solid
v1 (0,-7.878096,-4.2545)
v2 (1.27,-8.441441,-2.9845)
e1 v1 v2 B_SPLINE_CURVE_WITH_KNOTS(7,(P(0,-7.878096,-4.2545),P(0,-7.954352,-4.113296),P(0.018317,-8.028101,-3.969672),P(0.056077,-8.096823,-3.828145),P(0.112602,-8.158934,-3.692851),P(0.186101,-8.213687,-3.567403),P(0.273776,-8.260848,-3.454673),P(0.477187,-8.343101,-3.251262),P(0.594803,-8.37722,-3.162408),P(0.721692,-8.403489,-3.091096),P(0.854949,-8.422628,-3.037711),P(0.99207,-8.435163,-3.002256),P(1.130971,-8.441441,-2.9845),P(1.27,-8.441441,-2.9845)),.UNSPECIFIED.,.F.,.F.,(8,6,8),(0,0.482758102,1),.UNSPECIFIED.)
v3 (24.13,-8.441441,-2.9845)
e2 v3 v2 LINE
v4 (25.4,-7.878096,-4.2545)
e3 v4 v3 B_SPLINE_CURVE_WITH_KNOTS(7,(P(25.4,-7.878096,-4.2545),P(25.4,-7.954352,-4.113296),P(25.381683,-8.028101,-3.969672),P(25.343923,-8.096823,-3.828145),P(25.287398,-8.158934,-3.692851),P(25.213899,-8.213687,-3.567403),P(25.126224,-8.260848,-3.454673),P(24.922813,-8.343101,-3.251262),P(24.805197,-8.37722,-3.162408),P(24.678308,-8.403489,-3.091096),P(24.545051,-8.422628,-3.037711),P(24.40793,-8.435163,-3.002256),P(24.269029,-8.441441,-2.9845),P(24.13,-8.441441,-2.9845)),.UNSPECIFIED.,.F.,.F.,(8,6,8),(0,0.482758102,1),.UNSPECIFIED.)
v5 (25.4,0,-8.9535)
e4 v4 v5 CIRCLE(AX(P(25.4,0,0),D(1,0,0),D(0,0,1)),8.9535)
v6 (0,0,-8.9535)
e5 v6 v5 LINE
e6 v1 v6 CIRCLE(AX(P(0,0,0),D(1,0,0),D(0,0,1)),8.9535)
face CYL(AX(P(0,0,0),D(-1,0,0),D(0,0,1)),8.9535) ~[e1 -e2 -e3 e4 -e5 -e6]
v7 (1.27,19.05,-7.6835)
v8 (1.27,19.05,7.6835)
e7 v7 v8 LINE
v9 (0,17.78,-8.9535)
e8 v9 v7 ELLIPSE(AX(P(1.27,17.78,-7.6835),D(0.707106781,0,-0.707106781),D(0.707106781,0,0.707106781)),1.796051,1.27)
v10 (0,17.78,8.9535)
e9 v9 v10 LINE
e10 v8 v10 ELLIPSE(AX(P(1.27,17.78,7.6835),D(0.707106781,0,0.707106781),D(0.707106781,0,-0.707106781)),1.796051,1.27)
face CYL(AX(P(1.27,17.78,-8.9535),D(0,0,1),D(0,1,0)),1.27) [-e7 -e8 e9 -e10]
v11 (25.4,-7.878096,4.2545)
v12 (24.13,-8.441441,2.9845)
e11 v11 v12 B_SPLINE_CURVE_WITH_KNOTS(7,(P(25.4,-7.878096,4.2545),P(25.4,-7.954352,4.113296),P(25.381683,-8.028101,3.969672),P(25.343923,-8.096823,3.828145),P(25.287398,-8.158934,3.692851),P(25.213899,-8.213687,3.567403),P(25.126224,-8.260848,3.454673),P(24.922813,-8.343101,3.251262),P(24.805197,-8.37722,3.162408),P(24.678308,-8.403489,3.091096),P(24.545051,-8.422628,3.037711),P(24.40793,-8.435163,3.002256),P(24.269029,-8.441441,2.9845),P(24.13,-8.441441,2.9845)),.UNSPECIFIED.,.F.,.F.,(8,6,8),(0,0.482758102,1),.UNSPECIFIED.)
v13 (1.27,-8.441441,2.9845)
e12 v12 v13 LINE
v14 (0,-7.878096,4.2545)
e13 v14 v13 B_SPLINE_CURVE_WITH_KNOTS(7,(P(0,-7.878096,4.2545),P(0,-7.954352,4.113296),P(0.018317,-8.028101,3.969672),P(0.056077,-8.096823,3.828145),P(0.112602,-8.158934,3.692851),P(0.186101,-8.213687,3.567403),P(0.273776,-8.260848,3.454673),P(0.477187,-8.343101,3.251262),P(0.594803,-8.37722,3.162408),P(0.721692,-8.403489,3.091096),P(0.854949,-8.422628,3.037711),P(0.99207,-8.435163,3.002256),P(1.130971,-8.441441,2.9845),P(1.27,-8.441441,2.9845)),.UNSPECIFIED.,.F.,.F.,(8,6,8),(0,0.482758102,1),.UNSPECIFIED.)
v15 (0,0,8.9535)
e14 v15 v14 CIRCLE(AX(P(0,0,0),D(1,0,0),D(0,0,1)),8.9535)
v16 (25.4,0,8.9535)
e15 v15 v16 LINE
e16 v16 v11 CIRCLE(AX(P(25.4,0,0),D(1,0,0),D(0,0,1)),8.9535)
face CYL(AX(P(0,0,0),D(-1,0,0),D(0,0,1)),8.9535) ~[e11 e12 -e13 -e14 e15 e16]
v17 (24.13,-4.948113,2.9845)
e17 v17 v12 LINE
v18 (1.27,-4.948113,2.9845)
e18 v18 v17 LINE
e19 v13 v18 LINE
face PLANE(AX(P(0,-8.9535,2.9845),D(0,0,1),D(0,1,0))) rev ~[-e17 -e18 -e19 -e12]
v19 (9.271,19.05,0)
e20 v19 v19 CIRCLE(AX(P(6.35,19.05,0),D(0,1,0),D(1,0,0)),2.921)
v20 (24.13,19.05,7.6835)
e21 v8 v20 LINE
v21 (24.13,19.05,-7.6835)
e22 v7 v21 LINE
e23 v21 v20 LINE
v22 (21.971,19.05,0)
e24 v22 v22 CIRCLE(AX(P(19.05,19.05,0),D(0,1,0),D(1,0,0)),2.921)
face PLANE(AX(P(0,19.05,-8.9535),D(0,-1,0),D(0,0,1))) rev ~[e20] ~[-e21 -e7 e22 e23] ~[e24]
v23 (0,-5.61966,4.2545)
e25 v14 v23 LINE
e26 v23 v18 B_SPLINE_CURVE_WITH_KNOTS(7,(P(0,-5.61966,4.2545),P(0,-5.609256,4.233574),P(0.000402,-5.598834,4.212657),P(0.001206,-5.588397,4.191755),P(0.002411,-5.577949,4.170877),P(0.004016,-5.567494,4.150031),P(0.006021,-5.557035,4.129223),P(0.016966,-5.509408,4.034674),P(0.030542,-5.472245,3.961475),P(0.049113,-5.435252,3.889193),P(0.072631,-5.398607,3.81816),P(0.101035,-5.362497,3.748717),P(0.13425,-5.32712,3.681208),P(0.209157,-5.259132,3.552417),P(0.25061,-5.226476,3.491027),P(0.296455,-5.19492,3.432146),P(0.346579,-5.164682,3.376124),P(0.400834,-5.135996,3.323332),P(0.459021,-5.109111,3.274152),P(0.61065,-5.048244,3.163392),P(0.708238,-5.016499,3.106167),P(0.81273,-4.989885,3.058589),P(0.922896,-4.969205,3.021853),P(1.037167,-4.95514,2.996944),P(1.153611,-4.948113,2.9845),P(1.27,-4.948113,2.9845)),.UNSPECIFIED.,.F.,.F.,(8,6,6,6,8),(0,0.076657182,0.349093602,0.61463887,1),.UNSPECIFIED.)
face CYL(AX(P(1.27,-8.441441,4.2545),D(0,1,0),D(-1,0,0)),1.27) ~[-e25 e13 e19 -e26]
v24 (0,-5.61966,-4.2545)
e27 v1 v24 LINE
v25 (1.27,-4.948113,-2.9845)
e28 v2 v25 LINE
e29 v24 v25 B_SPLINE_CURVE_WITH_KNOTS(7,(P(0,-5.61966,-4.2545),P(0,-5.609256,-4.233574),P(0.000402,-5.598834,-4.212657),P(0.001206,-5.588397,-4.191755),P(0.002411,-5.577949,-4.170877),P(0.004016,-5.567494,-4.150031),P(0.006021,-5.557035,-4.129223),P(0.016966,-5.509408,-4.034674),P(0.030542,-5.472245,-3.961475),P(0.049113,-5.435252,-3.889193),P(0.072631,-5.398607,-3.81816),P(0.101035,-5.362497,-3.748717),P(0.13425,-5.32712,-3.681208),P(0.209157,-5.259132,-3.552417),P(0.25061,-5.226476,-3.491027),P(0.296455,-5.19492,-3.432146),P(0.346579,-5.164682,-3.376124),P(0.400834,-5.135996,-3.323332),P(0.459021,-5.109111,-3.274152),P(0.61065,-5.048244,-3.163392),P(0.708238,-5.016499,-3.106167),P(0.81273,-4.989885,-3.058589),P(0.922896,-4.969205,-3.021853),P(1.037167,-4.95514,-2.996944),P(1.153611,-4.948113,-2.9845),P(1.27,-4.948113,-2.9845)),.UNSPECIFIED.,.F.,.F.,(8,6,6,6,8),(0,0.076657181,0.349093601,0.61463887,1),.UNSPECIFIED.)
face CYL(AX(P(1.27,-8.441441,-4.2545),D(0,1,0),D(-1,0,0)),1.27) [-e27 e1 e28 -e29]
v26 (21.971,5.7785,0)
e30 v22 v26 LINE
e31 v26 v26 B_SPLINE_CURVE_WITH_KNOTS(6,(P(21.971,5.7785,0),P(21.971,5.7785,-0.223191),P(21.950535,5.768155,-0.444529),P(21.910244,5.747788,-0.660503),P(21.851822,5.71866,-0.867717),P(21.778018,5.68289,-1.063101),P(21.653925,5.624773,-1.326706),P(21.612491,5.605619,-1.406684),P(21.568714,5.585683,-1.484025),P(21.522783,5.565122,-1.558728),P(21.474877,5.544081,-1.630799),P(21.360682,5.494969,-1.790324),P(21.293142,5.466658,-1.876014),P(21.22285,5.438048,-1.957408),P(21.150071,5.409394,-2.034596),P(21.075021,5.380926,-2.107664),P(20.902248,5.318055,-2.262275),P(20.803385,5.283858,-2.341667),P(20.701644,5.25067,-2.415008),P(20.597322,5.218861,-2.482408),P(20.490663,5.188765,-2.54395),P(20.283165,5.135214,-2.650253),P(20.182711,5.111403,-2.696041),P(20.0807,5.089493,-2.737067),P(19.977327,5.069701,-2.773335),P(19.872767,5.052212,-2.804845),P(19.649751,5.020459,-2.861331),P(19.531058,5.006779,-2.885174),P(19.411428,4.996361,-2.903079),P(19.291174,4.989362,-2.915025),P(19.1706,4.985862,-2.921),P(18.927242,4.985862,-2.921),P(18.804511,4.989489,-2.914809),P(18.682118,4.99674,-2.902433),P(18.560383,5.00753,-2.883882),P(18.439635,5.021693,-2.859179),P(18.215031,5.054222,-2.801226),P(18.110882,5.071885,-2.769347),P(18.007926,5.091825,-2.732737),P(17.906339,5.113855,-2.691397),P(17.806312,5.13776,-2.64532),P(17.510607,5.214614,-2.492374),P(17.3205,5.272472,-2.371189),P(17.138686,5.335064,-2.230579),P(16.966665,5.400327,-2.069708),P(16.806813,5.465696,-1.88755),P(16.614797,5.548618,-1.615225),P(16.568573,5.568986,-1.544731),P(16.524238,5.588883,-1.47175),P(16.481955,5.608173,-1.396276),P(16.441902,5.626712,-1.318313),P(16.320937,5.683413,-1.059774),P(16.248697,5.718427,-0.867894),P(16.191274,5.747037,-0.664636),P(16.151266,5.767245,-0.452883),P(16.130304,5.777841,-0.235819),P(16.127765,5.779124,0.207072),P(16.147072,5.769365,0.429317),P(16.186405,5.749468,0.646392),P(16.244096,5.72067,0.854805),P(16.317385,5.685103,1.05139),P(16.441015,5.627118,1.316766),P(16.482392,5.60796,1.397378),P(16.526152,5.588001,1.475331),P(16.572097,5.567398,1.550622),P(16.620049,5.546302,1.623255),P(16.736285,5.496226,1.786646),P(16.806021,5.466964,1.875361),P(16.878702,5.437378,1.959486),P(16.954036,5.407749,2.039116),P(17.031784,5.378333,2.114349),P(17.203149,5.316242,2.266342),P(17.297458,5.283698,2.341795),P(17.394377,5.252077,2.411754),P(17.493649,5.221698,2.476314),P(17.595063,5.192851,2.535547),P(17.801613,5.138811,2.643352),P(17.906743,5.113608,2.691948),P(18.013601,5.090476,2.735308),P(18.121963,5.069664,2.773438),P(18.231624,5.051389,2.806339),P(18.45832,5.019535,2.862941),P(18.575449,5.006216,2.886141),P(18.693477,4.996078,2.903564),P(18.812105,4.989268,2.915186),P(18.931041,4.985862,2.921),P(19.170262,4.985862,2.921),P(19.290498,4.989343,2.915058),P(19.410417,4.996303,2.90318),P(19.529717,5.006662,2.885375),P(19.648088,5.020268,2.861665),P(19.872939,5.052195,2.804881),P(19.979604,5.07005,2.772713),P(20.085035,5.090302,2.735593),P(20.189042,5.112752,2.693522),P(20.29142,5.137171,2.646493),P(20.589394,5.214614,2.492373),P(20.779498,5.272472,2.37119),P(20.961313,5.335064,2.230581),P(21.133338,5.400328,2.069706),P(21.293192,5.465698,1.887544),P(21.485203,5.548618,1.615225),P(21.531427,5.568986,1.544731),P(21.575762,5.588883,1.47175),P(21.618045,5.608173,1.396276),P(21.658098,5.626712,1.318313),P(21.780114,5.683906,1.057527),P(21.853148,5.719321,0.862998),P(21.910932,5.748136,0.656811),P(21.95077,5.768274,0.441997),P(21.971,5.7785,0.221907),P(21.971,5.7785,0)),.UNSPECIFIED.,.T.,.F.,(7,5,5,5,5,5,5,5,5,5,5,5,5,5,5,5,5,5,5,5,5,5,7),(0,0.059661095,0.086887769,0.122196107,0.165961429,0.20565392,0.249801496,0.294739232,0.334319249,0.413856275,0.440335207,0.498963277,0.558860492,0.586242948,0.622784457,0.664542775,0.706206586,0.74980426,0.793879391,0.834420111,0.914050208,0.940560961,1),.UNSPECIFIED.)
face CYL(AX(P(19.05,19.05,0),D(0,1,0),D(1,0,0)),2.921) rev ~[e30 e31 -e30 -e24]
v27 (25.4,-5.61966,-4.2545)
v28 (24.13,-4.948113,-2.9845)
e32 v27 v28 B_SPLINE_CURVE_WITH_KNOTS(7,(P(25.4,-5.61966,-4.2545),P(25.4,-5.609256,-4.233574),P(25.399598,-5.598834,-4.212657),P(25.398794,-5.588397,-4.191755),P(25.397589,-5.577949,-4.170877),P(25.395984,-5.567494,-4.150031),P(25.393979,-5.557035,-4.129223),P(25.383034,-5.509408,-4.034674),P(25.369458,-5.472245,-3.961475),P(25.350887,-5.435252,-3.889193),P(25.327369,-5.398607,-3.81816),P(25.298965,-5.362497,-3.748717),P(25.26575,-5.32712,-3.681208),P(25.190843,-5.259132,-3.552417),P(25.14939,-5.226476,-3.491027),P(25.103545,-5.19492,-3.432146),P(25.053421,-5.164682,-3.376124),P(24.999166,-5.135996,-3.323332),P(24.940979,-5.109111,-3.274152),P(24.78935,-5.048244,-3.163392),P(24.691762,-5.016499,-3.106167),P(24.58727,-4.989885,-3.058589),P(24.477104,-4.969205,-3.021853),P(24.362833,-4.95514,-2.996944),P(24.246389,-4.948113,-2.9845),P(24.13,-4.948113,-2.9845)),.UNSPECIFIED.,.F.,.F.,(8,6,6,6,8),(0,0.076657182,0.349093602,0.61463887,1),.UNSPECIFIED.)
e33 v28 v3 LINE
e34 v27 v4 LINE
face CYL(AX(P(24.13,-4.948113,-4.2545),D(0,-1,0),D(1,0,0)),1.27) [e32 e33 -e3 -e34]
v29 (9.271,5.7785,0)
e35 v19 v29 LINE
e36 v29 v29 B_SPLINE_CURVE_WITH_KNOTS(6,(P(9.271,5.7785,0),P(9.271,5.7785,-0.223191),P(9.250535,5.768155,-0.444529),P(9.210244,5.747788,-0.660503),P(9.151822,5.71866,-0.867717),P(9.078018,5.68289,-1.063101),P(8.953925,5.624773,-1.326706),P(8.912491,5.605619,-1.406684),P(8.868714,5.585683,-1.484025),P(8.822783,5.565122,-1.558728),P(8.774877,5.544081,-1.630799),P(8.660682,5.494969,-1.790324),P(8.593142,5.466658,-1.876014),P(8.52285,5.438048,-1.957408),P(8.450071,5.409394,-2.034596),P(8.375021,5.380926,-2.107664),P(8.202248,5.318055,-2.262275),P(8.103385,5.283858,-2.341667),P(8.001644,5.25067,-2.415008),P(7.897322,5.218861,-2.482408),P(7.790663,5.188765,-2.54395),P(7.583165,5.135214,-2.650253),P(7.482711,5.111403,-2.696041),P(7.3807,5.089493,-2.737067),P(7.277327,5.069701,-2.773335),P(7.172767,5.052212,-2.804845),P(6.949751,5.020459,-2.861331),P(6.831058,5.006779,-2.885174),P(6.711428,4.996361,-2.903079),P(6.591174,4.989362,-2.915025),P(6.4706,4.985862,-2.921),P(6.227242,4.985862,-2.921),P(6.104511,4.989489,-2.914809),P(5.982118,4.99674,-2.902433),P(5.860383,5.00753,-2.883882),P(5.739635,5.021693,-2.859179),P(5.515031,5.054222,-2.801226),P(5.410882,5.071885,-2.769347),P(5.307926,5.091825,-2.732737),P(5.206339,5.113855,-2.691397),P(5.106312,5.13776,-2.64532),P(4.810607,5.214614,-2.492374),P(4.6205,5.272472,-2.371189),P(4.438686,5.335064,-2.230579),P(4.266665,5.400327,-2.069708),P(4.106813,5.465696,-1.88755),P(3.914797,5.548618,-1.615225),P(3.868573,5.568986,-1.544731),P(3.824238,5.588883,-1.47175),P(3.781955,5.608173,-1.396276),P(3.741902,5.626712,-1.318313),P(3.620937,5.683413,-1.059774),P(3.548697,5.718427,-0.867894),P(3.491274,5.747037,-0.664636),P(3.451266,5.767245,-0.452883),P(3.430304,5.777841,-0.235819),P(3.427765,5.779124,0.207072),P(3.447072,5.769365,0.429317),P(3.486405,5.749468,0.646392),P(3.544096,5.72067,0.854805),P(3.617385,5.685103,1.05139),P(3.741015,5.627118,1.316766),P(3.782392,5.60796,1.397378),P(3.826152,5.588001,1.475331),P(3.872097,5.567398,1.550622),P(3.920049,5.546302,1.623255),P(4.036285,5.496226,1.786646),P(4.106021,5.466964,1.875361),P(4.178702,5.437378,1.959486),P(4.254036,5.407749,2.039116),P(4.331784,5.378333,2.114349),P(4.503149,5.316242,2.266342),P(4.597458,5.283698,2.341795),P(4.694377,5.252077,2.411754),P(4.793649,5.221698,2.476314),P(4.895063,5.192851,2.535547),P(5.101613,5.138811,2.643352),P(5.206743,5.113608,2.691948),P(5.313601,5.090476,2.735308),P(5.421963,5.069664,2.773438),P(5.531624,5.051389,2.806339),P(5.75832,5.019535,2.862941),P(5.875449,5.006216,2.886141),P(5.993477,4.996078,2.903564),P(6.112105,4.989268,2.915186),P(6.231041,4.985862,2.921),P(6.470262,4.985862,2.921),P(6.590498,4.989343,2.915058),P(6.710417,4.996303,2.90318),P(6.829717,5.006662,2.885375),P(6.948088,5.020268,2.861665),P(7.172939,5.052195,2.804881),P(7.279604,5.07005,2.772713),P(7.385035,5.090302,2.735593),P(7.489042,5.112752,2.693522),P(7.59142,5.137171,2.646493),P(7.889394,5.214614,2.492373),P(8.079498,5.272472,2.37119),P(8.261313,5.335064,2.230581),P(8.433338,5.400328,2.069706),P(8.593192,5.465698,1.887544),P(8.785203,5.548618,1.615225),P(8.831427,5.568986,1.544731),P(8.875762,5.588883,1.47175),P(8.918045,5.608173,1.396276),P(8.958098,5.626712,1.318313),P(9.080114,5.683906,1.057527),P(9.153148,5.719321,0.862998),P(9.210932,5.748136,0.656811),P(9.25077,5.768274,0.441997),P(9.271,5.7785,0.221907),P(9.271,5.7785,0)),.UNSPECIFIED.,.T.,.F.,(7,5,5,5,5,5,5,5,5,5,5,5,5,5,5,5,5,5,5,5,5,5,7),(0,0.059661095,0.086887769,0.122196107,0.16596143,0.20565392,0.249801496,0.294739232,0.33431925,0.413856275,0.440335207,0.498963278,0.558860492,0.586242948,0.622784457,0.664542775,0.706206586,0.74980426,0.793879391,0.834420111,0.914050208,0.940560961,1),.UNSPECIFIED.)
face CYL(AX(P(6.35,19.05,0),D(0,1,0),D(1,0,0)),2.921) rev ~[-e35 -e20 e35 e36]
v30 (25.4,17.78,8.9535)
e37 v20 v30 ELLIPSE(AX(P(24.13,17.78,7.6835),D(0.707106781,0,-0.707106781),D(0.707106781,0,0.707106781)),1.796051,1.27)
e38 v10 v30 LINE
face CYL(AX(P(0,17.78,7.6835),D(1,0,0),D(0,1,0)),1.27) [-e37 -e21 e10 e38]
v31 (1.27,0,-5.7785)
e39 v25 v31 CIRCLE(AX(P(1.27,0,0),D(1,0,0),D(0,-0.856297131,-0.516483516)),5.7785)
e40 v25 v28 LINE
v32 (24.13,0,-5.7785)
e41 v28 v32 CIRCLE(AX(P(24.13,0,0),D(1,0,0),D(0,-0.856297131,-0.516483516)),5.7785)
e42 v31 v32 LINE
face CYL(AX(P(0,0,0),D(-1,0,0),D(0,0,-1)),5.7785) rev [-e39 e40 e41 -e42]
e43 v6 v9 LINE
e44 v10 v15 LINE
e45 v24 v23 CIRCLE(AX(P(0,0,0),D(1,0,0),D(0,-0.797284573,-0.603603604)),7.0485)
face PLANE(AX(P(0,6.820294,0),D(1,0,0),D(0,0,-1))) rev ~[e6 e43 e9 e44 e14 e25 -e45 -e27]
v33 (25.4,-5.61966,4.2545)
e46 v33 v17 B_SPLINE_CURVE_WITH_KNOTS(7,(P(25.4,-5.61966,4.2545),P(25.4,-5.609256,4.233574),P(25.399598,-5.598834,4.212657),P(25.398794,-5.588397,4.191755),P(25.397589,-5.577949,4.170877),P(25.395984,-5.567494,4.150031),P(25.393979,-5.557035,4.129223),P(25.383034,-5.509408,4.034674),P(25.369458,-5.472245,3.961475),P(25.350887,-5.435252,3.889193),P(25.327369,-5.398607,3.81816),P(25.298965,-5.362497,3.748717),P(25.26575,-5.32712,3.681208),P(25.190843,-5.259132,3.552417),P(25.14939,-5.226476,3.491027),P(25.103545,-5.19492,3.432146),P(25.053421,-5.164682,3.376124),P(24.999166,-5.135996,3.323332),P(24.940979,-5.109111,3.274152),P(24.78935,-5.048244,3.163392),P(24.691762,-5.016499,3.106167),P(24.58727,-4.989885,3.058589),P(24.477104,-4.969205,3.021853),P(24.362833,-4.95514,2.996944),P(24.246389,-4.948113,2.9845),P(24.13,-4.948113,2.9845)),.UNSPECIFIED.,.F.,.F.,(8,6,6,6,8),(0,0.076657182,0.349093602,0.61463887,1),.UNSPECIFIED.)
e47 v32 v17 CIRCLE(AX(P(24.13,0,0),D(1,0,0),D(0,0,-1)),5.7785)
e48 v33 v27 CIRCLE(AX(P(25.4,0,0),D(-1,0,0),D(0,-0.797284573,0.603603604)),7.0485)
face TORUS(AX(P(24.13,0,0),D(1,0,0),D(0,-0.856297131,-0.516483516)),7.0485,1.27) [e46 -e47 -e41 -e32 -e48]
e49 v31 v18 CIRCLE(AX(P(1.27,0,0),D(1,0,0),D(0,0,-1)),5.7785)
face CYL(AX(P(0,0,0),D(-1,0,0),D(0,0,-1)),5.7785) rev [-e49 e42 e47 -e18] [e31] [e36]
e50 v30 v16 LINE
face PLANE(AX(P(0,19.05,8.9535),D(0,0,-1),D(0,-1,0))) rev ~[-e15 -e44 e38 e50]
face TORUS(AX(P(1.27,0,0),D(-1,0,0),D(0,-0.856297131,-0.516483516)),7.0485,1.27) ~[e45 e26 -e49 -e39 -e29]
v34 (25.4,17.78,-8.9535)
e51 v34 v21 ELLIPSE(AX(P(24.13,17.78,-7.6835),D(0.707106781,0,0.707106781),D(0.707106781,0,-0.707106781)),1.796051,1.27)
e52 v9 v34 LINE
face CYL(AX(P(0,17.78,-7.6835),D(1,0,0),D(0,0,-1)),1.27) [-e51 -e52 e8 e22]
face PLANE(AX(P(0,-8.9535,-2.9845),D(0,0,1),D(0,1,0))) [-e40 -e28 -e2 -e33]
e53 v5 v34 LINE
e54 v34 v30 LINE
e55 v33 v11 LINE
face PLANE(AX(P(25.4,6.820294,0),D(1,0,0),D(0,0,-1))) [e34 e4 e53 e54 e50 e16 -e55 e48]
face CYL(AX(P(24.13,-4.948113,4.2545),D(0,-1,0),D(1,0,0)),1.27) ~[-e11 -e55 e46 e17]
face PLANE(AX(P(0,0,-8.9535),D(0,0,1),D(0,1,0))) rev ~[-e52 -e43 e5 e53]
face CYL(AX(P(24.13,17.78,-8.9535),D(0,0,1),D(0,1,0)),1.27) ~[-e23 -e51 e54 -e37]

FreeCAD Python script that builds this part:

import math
import FreeCAD as App
import Part
import Sketcher

V = App.Vector
Q = App.Units.Quantity


def edges_at(feature, points):
    """Names of the edges that pass closest to the given points."""
    edges = feature.Shape.Edges
    near = lambda p: min(range(len(edges)), key=lambda i: edges[i].distToShape(Part.Vertex(*p))[0])
    return sorted({f"Edge{near(p) + 1}" for p in points})


def add_polygon(sketch, points):
    """Adds a closed chain of lines whose ends are joined by coincident constraints."""
    first, n = sketch.GeometryCount, len(points)
    for a, b in zip(points, points[1:] + points[:1]):
        sketch.addGeometry(Part.LineSegment(App.Vector(*a, 0), App.Vector(*b, 0)), False)
    for i in range(n):
        sketch.addConstraint(Sketcher.Constraint("Coincident", first + i, 2, first + (i + 1) % n, 1))

doc = App.newDocument("Part")
body = doc.addObject("PartDesign::Body", "Body")

sketch1 = doc.addObject("Sketcher::SketchObject", "Sketch")
body.addObject(sketch1)
sketch1.AttachmentSupport = (doc.YZ_Plane, [""])
sketch1.MapMode = "FlatFace"
sketch1.addGeometry([
    Part.LineSegment(V(19, 9, 0), V(0, 9, 0)),
    Part.ArcOfCircle(Part.Circle(V(0, 0, 0), V(0, 0, 1), 9), math.radians(90), math.radians(270)),
    Part.LineSegment(V(0, -9, 0), V(19, -9, 0)),
    Part.LineSegment(V(19, -9, 0), V(19, 9, 0)),
    Part.Circle(V(0, 0, 0), V(0, 0, 1), 6),
], False)
sketch1.addConstraint([
    Sketcher.Constraint("Tangent", 0, 2, 1, 1),
    Sketcher.Constraint("Tangent", 1, 2, 2, 1),
    Sketcher.Constraint("Coincident", 2, 2, 3, 1),
    Sketcher.Constraint("Coincident", 3, 2, 0, 1),
    Sketcher.Constraint("Horizontal", 0),
    Sketcher.Constraint("Horizontal", 2),
    Sketcher.Constraint("Vertical", 3),
    Sketcher.Constraint("Coincident", 1, 3, -1, 1),
    Sketcher.Constraint("Coincident", 4, 3, -1, 1),
    Sketcher.Constraint("Diameter", 4, Q("0.455 in")),
    Sketcher.Constraint("DistanceX", 0, 2, 0, 1, Q("0.75 in")),
    Sketcher.Constraint("Radius", 1, Q("0.3525 in")),
])
pad1 = doc.addObject("PartDesign::Pad", "Pad")
body.addObject(pad1)
pad1.Profile = sketch1
pad1.Length = Q("1 in")

sketch2 = doc.addObject("Sketcher::SketchObject", "Sketch001")
body.addObject(sketch2)
sketch2.AttachmentSupport = (doc.XZ_Plane, [""])
sketch2.MapMode = "FlatFace"
sketch2.AttachmentOffset = App.Placement(V(0, 0, -0.75 * 25.4), App.Rotation())
sketch2.addGeometry([
    Part.Circle(V(6.3, 0, 0), V(0, 0, 1), 2.9),
    Part.Circle(V(19.1, 0, 0), V(0, 0, 1), 2.9),
], False)
sketch2.addConstraint([
    Sketcher.Constraint("Equal", 0, 1),
    Sketcher.Constraint("PointOnObject", 0, 3, -1),
    Sketcher.Constraint("PointOnObject", 1, 3, -1),
    Sketcher.Constraint("Diameter", 0, Q("0.23 in")),
    Sketcher.Constraint("DistanceX", 0, 3, 1, 3, Q("0.5 in")),
    Sketcher.Constraint("DistanceX", -1, 1, 0, 3, Q("0.25 in")),
])
pocket1 = doc.addObject("PartDesign::Pocket", "Pocket")
body.addObject(pocket1)
pocket1.Profile = sketch2
pocket1.Length = 27.513623
pocket1.Reversed = True

sketch3 = doc.addObject("Sketcher::SketchObject", "Sketch002")
body.addObject(sketch3)
sketch3.AttachmentSupport = (doc.YZ_Plane, [""])
sketch3.MapMode = "FlatFace"
add_polygon(sketch3, [(-4.9, -3), (-9, -3), (-9, 3), (-4.9, 3)])
sketch3.addConstraint([
    Sketcher.Constraint("Horizontal", 0),
    Sketcher.Constraint("Vertical", 1),
    Sketcher.Constraint("Horizontal", 2),
    Sketcher.Constraint("Vertical", 3),
    Sketcher.Constraint("DistanceY", 1, 1, 1, 2, Q("0.235 in")),
    Sketcher.Constraint("DistanceX", 0, 2, -1, 1, Q("0.3525 in")),
    Sketcher.Constraint("DistanceY", 0, 2, -1, 1, Q("0.1175 in")),
    Sketcher.Constraint("DistanceX", 0, 2, 0, 1, 4.005387),
])
pocket2 = doc.addObject("PartDesign::Pocket", "Pocket001")
body.addObject(pocket2)
pocket2.Profile = sketch3
pocket2.Type = "ThroughAll"
pocket2.Reversed = True
doc.recompute()

fillet = doc.addObject("PartDesign::Fillet", "Fillet")
body.addObject(fillet)
fillet.Base = (pocket2, edges_at(pocket2, [
    (0, 5.032, 2.841),
    (0, -6.695, 2.985),
    (25.4, 5.032, 2.841),
    (0, -6.695, -2.985),
    (25.4, -6.695, -2.985),
    (25.4, -6.695, 2.985),
]))
fillet.Radius = Q("0.05 in")
doc.recompute()

fillet2 = doc.addObject("PartDesign::Fillet", "Fillet001")
body.addObject(fillet2)
fillet2.Base = (fillet, edges_at(fillet, [
    (12.7, 19.05, 8.954),
    (12.7, 19.05, -8.954),
    (25.4, 19.05, 0),
    (0, 19.05, 0),
]))
fillet2.Radius = Q("0.05 in")

doc.recompute()
